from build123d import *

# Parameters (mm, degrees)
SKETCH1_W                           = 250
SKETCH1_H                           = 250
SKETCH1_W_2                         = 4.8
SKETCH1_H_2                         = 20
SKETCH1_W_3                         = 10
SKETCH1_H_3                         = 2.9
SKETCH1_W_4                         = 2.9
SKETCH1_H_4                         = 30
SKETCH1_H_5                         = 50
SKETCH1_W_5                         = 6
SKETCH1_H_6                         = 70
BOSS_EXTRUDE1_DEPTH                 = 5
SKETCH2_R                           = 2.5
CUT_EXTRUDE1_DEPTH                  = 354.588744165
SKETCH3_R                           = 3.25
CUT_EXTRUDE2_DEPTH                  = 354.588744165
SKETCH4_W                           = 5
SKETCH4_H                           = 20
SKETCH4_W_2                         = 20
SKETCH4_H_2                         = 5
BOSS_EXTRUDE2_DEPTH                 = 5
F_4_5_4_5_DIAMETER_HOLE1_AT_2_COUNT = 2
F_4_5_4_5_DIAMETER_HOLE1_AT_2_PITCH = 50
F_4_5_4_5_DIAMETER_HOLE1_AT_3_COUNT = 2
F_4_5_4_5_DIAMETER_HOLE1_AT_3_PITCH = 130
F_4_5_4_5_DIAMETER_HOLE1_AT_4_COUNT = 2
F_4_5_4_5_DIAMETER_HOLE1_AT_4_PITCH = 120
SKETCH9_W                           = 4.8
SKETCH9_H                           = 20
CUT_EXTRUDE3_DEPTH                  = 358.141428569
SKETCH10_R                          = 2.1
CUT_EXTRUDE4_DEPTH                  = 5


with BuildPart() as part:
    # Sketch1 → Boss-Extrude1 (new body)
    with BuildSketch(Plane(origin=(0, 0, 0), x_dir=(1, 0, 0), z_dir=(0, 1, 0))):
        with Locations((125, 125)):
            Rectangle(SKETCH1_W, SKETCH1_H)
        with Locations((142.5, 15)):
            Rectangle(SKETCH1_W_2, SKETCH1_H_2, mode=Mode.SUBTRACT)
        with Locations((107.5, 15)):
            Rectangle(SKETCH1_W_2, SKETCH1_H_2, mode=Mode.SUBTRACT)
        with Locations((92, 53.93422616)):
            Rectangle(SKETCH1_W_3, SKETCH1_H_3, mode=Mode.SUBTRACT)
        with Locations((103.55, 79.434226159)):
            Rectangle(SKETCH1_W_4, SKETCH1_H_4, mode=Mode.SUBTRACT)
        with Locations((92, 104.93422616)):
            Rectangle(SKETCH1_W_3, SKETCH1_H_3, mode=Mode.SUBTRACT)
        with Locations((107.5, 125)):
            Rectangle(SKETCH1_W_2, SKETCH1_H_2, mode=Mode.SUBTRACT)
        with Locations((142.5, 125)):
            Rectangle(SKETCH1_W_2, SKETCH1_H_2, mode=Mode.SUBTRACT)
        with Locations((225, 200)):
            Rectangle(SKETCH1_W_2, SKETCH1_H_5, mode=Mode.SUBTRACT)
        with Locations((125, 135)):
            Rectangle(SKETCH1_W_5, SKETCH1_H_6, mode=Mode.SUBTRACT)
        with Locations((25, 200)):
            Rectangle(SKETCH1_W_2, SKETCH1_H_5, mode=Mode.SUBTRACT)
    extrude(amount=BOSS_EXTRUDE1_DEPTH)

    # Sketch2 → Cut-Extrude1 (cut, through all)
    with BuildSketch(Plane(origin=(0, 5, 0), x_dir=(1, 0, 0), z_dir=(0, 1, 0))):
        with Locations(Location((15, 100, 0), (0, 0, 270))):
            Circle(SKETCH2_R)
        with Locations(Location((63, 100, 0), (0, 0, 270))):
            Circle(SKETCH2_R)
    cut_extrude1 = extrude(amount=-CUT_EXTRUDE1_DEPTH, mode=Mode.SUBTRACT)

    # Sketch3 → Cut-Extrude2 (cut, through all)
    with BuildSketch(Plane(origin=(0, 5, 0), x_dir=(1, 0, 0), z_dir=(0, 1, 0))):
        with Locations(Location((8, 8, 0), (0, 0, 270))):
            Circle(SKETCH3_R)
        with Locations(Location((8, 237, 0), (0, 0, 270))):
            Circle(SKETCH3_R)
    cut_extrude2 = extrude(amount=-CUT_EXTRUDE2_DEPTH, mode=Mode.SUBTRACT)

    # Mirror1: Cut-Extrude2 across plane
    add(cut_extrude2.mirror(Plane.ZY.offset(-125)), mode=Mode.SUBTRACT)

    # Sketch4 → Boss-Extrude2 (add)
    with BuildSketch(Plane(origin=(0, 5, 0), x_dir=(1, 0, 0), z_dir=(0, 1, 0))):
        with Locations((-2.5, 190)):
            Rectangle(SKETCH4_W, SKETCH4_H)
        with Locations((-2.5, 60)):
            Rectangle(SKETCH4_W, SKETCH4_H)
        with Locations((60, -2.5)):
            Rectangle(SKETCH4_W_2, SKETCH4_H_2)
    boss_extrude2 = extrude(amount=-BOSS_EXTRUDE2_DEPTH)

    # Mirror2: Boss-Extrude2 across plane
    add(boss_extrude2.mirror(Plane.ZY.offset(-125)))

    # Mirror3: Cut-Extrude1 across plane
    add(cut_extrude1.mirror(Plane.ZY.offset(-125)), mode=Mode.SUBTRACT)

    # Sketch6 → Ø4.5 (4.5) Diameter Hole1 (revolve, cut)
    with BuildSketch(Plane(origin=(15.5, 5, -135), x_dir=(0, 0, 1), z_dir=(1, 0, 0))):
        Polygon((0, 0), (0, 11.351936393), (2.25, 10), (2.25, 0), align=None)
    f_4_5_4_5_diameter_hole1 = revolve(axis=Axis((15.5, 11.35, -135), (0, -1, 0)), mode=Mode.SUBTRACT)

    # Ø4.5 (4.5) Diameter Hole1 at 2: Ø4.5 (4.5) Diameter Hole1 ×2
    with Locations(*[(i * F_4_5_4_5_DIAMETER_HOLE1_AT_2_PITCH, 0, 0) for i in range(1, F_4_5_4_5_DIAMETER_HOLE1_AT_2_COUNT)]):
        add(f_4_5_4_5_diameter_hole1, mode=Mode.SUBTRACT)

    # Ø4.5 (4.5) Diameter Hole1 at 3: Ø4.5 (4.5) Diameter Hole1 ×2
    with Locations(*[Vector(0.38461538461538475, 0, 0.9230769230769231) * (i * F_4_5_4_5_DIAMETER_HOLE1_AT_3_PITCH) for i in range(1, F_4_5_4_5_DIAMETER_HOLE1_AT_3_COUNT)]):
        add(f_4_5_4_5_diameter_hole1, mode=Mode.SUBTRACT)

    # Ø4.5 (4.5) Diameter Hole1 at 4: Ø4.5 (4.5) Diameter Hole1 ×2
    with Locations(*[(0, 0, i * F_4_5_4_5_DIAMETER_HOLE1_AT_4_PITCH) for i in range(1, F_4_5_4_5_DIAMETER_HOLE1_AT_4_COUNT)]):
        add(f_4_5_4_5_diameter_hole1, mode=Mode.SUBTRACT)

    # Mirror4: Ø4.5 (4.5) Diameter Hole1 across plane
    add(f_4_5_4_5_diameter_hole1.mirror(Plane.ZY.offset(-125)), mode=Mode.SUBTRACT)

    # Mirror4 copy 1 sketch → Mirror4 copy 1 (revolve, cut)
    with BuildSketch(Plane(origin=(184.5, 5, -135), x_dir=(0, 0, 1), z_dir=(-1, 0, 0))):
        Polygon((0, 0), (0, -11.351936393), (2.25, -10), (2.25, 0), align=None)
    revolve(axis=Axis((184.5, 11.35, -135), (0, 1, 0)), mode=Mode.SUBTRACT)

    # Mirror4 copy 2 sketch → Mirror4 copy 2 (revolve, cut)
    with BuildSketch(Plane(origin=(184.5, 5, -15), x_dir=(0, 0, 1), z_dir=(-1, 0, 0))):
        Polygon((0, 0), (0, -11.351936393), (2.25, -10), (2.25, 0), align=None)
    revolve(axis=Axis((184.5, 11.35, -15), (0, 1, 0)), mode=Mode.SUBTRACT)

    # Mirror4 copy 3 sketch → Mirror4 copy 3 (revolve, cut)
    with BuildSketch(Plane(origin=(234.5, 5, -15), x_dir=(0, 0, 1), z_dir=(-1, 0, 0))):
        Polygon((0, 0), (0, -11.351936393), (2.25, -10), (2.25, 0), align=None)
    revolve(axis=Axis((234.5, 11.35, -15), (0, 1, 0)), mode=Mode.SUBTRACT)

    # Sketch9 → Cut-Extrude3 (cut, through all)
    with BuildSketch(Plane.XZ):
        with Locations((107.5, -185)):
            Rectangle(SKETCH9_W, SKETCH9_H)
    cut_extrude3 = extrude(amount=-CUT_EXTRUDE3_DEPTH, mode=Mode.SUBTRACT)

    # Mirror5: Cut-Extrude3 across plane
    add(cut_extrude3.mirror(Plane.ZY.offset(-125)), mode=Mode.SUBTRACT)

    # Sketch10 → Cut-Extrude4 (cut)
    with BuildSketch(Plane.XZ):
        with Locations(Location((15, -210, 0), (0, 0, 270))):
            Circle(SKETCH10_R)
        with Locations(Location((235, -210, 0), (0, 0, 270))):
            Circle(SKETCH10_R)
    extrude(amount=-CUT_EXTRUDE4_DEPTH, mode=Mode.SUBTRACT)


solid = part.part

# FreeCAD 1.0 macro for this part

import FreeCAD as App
import Part
import Sketcher
Q = App.Units.Quantity


def add_polygon(sketch, points):
    """Adds a closed chain of lines whose ends are joined by coincident constraints."""
    first, n = sketch.GeometryCount, len(points)
    for a, b in zip(points, points[1:] + points[:1]):
        sketch.addGeometry(Part.LineSegment(App.Vector(*a, 0), App.Vector(*b, 0)), False)
    for i in range(n):
        sketch.addConstraint(Sketcher.Constraint("Coincident", first + i, 2, first + (i + 1) % n, 1))

doc = App.newDocument("Part")
params = doc.addObject("Spreadsheet::Sheet", "Params")
for row, (alias, value) in enumerate([
    ("sketch1_width", "250 mm"),
    ("sketch1_width2", "10 mm"),
    ("sketch1_width3", "6 mm"),
    ("sketch1_height", "20 mm"),
    ("sketch1_height2", "30 mm"),
    ("pad1_length", "5 mm"),
    ("sketch2_diameter", "5 mm"),
    ("sketch3_diameter", "6.5 mm"),
    ("sketch4_width", "5 mm"),
    ("sketch4_width2", "20 mm"),
    ("pad2_length", "5 mm"),
    ("sketch5_width", "10 mm"),
    ("sketch5_height", "2.25 mm"),
    ("groove_angle", "360 deg"),
    ("linearpattern_pitch", "50 mm"),
    ("linearpattern2_pitch", "130 mm"),
    ("linearpattern3_pitch", "120 mm"),
    ("sketch6_width", "10 mm"),
    ("sketch6_height", "2.25 mm"),
    ("groove2_angle", "360 deg"),
    ("sketch7_width", "10 mm"),
    ("sketch7_height", "2.25 mm"),
    ("groove3_angle", "360 deg"),
    ("sketch8_width", "10 mm"),
    ("sketch8_height", "2.25 mm"),
    ("groove4_angle", "360 deg"),
    ("sketch9_height", "20 mm"),
    ("sketch9_width", "4.8 mm"),
    ("sketch10_diameter", "4.2 mm"),
    ("pocket4_length", "5 mm"),
], start=1):
    params.set(f"A{row}", alias)
    params.set(f"B{row}", "=" + value)
    params.setAlias(f"B{row}", alias)

body = doc.addObject("PartDesign::Body", "Body")

sketch1 = doc.addObject("Sketcher::SketchObject", "Sketch")
body.addObject(sketch1)
sketch1.AttachmentSupport = (doc.XZ_Plane, [""])
sketch1.MapMode = "FlatFace"
add_polygon(sketch1, [(0, -250), (0, 0), (250, 0), (250, -250)])
add_polygon(sketch1, [(109.9, -5), (105.1, -5), (105.1, -25), (109.9, -25)])
add_polygon(sketch1, [(97, -52.5), (87, -52.5), (87, -55.4), (97, -55.4)])
add_polygon(sketch1, [(105, -64.4), (102.1, -64.4), (102.1, -94.4), (105, -94.4)])
add_polygon(sketch1, [(97, -103.5), (87, -103.5), (87, -106.4), (97, -106.4)])
add_polygon(sketch1, [(144.9, -5), (140.1, -5), (140.1, -25), (144.9, -25)])
add_polygon(sketch1, [(109.9, -115), (105.1, -115), (105.1, -135), (109.9, -135)])
add_polygon(sketch1, [(27.4, -175), (22.6, -175), (22.6, -225), (27.4, -225)])
add_polygon(sketch1, [(144.9, -115), (140.1, -115), (140.1, -135), (144.9, -135)])
add_polygon(sketch1, [(128, -100), (122, -100), (122, -170), (128, -170)])
add_polygon(sketch1, [(227.4, -175), (222.6, -175), (222.6, -225), (227.4, -225)])
sketch1.addConstraint([
    Sketcher.Constraint("Vertical", 0),
    Sketcher.Constraint("Horizontal", 1),
    Sketcher.Constraint("Vertical", 2),
    Sketcher.Constraint("Horizontal", 3),
    Sketcher.Constraint("Horizontal", 4),
    Sketcher.Constraint("Vertical", 5),
    Sketcher.Constraint("Horizontal", 6),
    Sketcher.Constraint("Vertical", 7),
    Sketcher.Constraint("Horizontal", 8),
    Sketcher.Constraint("Vertical", 9),
    Sketcher.Constraint("Horizontal", 10),
    Sketcher.Constraint("Vertical", 11),
    Sketcher.Constraint("Horizontal", 12),
    Sketcher.Constraint("Vertical", 13),
    Sketcher.Constraint("Horizontal", 14),
    Sketcher.Constraint("Vertical", 15),
    Sketcher.Constraint("Horizontal", 16),
    Sketcher.Constraint("Vertical", 17),
    Sketcher.Constraint("Horizontal", 18),
    Sketcher.Constraint("Vertical", 19),
    Sketcher.Constraint("Horizontal", 20),
    Sketcher.Constraint("Vertical", 21),
    Sketcher.Constraint("Horizontal", 22),
    Sketcher.Constraint("Vertical", 23),
    Sketcher.Constraint("Horizontal", 24),
    Sketcher.Constraint("Vertical", 25),
    Sketcher.Constraint("Horizontal", 26),
    Sketcher.Constraint("Vertical", 27),
    Sketcher.Constraint("Horizontal", 28),
    Sketcher.Constraint("Vertical", 29),
    Sketcher.Constraint("Horizontal", 30),
    Sketcher.Constraint("Vertical", 31),
    Sketcher.Constraint("Horizontal", 32),
    Sketcher.Constraint("Vertical", 33),
    Sketcher.Constraint("Horizontal", 34),
    Sketcher.Constraint("Vertical", 35),
    Sketcher.Constraint("Horizontal", 36),
    Sketcher.Constraint("Vertical", 37),
    Sketcher.Constraint("Horizontal", 38),
    Sketcher.Constraint("Vertical", 39),
    Sketcher.Constraint("Horizontal", 40),
    Sketcher.Constraint("Vertical", 41),
    Sketcher.Constraint("Horizontal", 42),
    Sketcher.Constraint("Vertical", 43),
    Sketcher.Constraint("Coincident", 0, 2, -1, 1),
    Sketcher.Constraint("Horizontal", 7, 2, 20, 2),
    Sketcher.Constraint("Horizontal", 6, 2, 21, 2),
    Sketcher.Constraint("Horizontal", 27, 2, 32, 2),
    Sketcher.Constraint("Horizontal", 26, 2, 33, 2),
    Sketcher.Constraint("Horizontal", 31, 2, 40, 2),
    Sketcher.Constraint("Horizontal", 30, 2, 41, 2),
    Sketcher.Constraint("Vertical", 9, 2, 16, 2),
    Sketcher.Constraint("Vertical", 11, 2, 18, 2),
    Sketcher.Constraint("Vertical", 5, 2, 24, 2),
    Sketcher.Constraint("Vertical", 7, 2, 26, 2),
    Sketcher.Constraint("Vertical", 21, 2, 32, 2),
    Sketcher.Constraint("Vertical", 23, 2, 34, 2),
    Sketcher.Constraint("Equal", 6, 20),
    Sketcher.Constraint("Equal", 26, 28),
    Sketcher.Constraint("Equal", 34, 40),
    Sketcher.Constraint("Equal", 3, 0),
    Sketcher.Constraint("Equal", 14, 9),
    Sketcher.Constraint("Equal", 11, 17),
    Sketcher.Constraint("Equal", 23, 25),
    Sketcher.Constraint("DistanceX", 1, 1, 1, 2, Q("250 mm")),
    Sketcher.Constraint("DistanceX", 8, 2, 8, 1, Q("10 mm")),
    Sketcher.Constraint("DistanceX", 36, 2, 36, 1, Q("6 mm")),
    Sketcher.Constraint("DistanceY", 5, 2, 5, 1, Q("20 mm")),
    Sketcher.Constraint("DistanceY", 13, 2, 13, 1, Q("30 mm")),
    Sketcher.Constraint("DistanceY", 29, 2, 29, 1, Q("50 mm")),
    Sketcher.Constraint("DistanceY", 37, 2, 37, 1, Q("70 mm")),
    Sketcher.Constraint("DistanceX", 4, 2, 4, 1, Q("4.8 mm")),
    Sketcher.Constraint("DistanceX", 12, 2, 12, 1, Q("2.9 mm")),
    Sketcher.Constraint("DistanceY", 4, 2, -1, 1, Q("5 mm")),
    Sketcher.Constraint("DistanceX", -1, 1, 8, 2, Q("87 mm")),
    Sketcher.Constraint("DistanceX", -1, 1, 14, 2, Q("105 mm")),
    Sketcher.Constraint("DistanceY", 24, 2, -1, 1, Q("115 mm")),
    Sketcher.Constraint("DistanceY", 28, 2, -1, 1, Q("175 mm")),
    Sketcher.Constraint("DistanceX", -1, 1, 36, 2, Q("122 mm")),
    Sketcher.Constraint("DistanceY", 36, 2, -1, 1, Q("100 mm")),
    Sketcher.Constraint("DistanceX", 12, 2, 5, 2, Q("3 mm")),
    Sketcher.Constraint("DistanceX", 4, 2, 20, 2, Q("35 mm")),
    Sketcher.Constraint("DistanceX", -1, 1, 28, 2, Q("22.6 mm")),
    Sketcher.Constraint("DistanceX", -1, 1, 40, 2, Q("222.6 mm")),
    Sketcher.Constraint("DistanceY", 16, 2, 9, 2, Q("48.1 mm")),
    Sketcher.Constraint("DistanceY", 12, 2, 10, 2, Q("9.05 mm")),
    Sketcher.Constraint("DistanceY", 8, 2, -1, 1, Q("52.484226 mm")),
])
sketch1.setExpression("Constraints[108]", "Params.sketch1_width")
sketch1.setExpression("Constraints[109]", "Params.sketch1_width2")
sketch1.setExpression("Constraints[110]", "Params.sketch1_width3")
sketch1.setExpression("Constraints[111]", "Params.sketch1_height")
sketch1.setExpression("Constraints[112]", "Params.sketch1_height2")
pad1 = doc.addObject("PartDesign::Pad", "Pad")
body.addObject(pad1)
pad1.Profile = sketch1
pad1.setExpression("Length", "Params.pad1_length")
pad1.Reversed = True

sketch2 = doc.addObject("Sketcher::SketchObject", "Sketch001")
body.addObject(sketch2)
sketch2.AttachmentSupport = (doc.XZ_Plane, [""])
sketch2.MapMode = "FlatFace"
sketch2.AttachmentOffset = App.Placement(App.Vector(0, 0, -5), App.Rotation())
sketch2.addGeometry([
    Part.Circle(App.Vector(15, -100, 0), App.Vector(0, 0, 1), 2.5),
    Part.Circle(App.Vector(63, -100, 0), App.Vector(0, 0, 1), 2.5),
], False)
sketch2.addConstraint([
    Sketcher.Constraint("Equal", 0, 1),
    Sketcher.Constraint("Horizontal", 0, 3, 1, 3),
    Sketcher.Constraint("Diameter", 0, Q("5 mm")),
    Sketcher.Constraint("DistanceX", -1, 1, 0, 3, Q("15 mm")),
    Sketcher.Constraint("DistanceY", 0, 3, -1, 1, Q("100 mm")),
    Sketcher.Constraint("DistanceX", -1, 1, 1, 3, Q("63 mm")),
])
sketch2.setExpression("Constraints[2]", "Params.sketch2_diameter")
pocket1 = doc.addObject("PartDesign::Pocket", "Pocket")
body.addObject(pocket1)
pocket1.Profile = sketch2
pocket1.Type = "ThroughAll"
pocket1.Reversed = True

sketch3 = doc.addObject("Sketcher::SketchObject", "Sketch002")
body.addObject(sketch3)
sketch3.AttachmentSupport = (doc.XZ_Plane, [""])
sketch3.MapMode = "FlatFace"
sketch3.AttachmentOffset = App.Placement(App.Vector(0, 0, -5), App.Rotation())
sketch3.addGeometry([
    Part.Circle(App.Vector(8, -8, 0), App.Vector(0, 0, 1), 3.2),
    Part.Circle(App.Vector(8, -237, 0), App.Vector(0, 0, 1), 3.2),
], False)
sketch3.addConstraint([
    Sketcher.Constraint("Equal", 0, 1),
    Sketcher.Constraint("Vertical", 0, 3, 1, 3),
    Sketcher.Constraint("Diameter", 0, Q("6.5 mm")),
    Sketcher.Constraint("DistanceX", -1, 1, 0, 3, Q("8 mm")),
    Sketcher.Constraint("DistanceY", 0, 3, -1, 1, Q("8 mm")),
    Sketcher.Constraint("DistanceY", 1, 3, -1, 1, Q("237 mm")),
])
sketch3.setExpression("Constraints[2]", "Params.sketch3_diameter")
pocket2 = doc.addObject("PartDesign::Pocket", "Pocket001")
body.addObject(pocket2)
pocket2.Profile = sketch3
pocket2.Type = "ThroughAll"
pocket2.Reversed = True
doc.recompute()

datumplane = doc.addObject("PartDesign::Plane", "DatumPlane")
body.addObject(datumplane)
datumplane.AttachmentSupport = (doc.YZ_Plane, [""])
datumplane.MapMode = "FlatFace"
datumplane.AttachmentOffset = App.Placement(App.Vector(0, 0, 125), App.Rotation())
mirrored = doc.addObject("PartDesign::Mirrored", "Mirrored")
body.addObject(mirrored)
mirrored.Originals = [pocket2]
mirrored.MirrorPlane = (datumplane, [""])
body.Tip = mirrored

sketch4 = doc.addObject("Sketcher::SketchObject", "Sketch003")
body.addObject(sketch4)
sketch4.AttachmentSupport = (doc.XZ_Plane, [""])
sketch4.MapMode = "FlatFace"
sketch4.AttachmentOffset = App.Placement(App.Vector(0, 0, -5), App.Rotation())
add_polygon(sketch4, [(-5, -200), (-5, -180), (0, -180), (0, -200)])
add_polygon(sketch4, [(-5, -70), (-5, -50), (0, -50), (0, -70)])
add_polygon(sketch4, [(50, 0), (50, 5), (70, 5), (70, 0)])
sketch4.addConstraint([
    Sketcher.Constraint("Vertical", 0),
    Sketcher.Constraint("Horizontal", 1),
    Sketcher.Constraint("Vertical", 2),
    Sketcher.Constraint("Horizontal", 3),
    Sketcher.Constraint("Vertical", 4),
    Sketcher.Constraint("Horizontal", 5),
    Sketcher.Constraint("Vertical", 6),
    Sketcher.Constraint("Horizontal", 7),
    Sketcher.Constraint("Vertical", 8),
    Sketcher.Constraint("Horizontal", 9),
    Sketcher.Constraint("Vertical", 10),
    Sketcher.Constraint("Horizontal", 11),
    Sketcher.Constraint("PointOnObject", 1, 2, -2),
    Sketcher.Constraint("PointOnObject", 5, 2, -2),
    Sketcher.Constraint("PointOnObject", 10, 2, -1),
    Sketcher.Constraint("Vertical", 3, 2, 4, 2),
    Sketcher.Constraint("Equal", 11, 0),
    Sketcher.Constraint("Equal", 2, 4),
    Sketcher.Constraint("Equal", 7, 8),
    Sketcher.Constraint("DistanceX", 1, 1, 1, 2, Q("5 mm")),
    Sketcher.Constraint("DistanceX", 9, 1, 9, 2, Q("20 mm")),
    Sketcher.Constraint("DistanceY", 0, 2, -1, 1, Q("180 mm")),
    Sketcher.Constraint("DistanceY", 4, 2, -1, 1, Q("50 mm")),
    Sketcher.Constraint("DistanceX", -1, 1, 8, 2, Q("50 mm")),
])
sketch4.setExpression("Constraints[31]", "Params.sketch4_width")
sketch4.setExpression("Constraints[32]", "Params.sketch4_width2")
pad2 = doc.addObject("PartDesign::Pad", "Pad001")
body.addObject(pad2)
pad2.Profile = sketch4
pad2.setExpression("Length", "Params.pad2_length")
doc.recompute()

datumplane2 = doc.addObject("PartDesign::Plane", "DatumPlane001")
body.addObject(datumplane2)
datumplane2.AttachmentSupport = (doc.YZ_Plane, [""])
datumplane2.MapMode = "FlatFace"
datumplane2.AttachmentOffset = App.Placement(App.Vector(0, 0, 125), App.Rotation())
mirrored2 = doc.addObject("PartDesign::Mirrored", "Mirrored001")
body.addObject(mirrored2)
mirrored2.Originals = [pad2]
mirrored2.MirrorPlane = (datumplane2, [""])
body.Tip = mirrored2
doc.recompute()

datumplane3 = doc.addObject("PartDesign::Plane", "DatumPlane002")
body.addObject(datumplane3)
datumplane3.AttachmentSupport = (doc.YZ_Plane, [""])
datumplane3.MapMode = "FlatFace"
datumplane3.AttachmentOffset = App.Placement(App.Vector(0, 0, 125), App.Rotation())
mirrored3 = doc.addObject("PartDesign::Mirrored", "Mirrored002")
body.addObject(mirrored3)
mirrored3.Originals = [pocket1]
mirrored3.MirrorPlane = (datumplane3, [""])
body.Tip = mirrored3

sketch5 = doc.addObject("Sketcher::SketchObject", "Sketch004")
body.addObject(sketch5)
sketch5.AttachmentSupport = (doc.YZ_Plane, [""])
sketch5.MapMode = "FlatFace"
sketch5.AttachmentOffset = App.Placement(App.Vector(0, 0, 15.5), App.Rotation())
add_polygon(sketch5, [(-6.4, -135), (5, -135), (5, -132.8), (-5, -132.8)])
sketch5.addGeometry(Part.LineSegment(App.Vector(5, -135, 0), App.Vector(-6.4, -135, 0)), True)
sketch5.addConstraint([
    Sketcher.Constraint("Horizontal", 0),
    Sketcher.Constraint("Vertical", 1),
    Sketcher.Constraint("Horizontal", 2),
    Sketcher.Constraint("Horizontal", 4),
    Sketcher.Constraint("Coincident", 4, 1, 0, 2),
    Sketcher.Constraint("Equal", 0, 4),
    Sketcher.Constraint("DistanceX", 2, 2, 2, 1, Q("10 mm")),
    Sketcher.Constraint("Angle", 3, Q("-121 deg")),
    Sketcher.Constraint("DistanceX", -1, 1, 0, 2, Q("5 mm")),
    Sketcher.Constraint("DistanceY", 0, 2, -1, 1, Q("135 mm")),
    Sketcher.Constraint("DistanceY", 1, 1, 1, 2, Q("2.25 mm")),
])
sketch5.setExpression("Constraints[10]", "Params.sketch5_width")
sketch5.setExpression("Constraints[14]", "Params.sketch5_height")
groove = doc.addObject("PartDesign::Groove", "Groove")
body.addObject(groove)
groove.Profile = sketch5
groove.ReferenceAxis = (sketch5, ["Axis0"])
groove.setExpression("Angle", "Params.groove_angle")
doc.recompute()

linearpattern = doc.addObject("PartDesign::LinearPattern", "LinearPattern")
body.addObject(linearpattern)
linearpattern.Originals = [groove]
linearpattern.Direction = (doc.X_Axis, [""])
linearpattern.Mode = "offset"
linearpattern.setExpression("Offset", "Params.linearpattern_pitch")
linearpattern.Occurrences = 2
body.Tip = linearpattern
doc.recompute()

datumline = doc.addObject("PartDesign::Line", "DatumLine")
body.addObject(datumline)
datumline.Placement = App.Placement(App.Vector(0, 0, 0), App.Rotation(App.Vector(0, 0, 1), App.Vector(0.384615385, 0, 0.923076923)))
linearpattern2 = doc.addObject("PartDesign::LinearPattern", "LinearPattern001")
body.addObject(linearpattern2)
linearpattern2.Originals = [groove]
linearpattern2.Direction = (datumline, [""])
linearpattern2.Mode = "offset"
linearpattern2.setExpression("Offset", "Params.linearpattern2_pitch")
linearpattern2.Occurrences = 2
body.Tip = linearpattern2
doc.recompute()

linearpattern3 = doc.addObject("PartDesign::LinearPattern", "LinearPattern002")
body.addObject(linearpattern3)
linearpattern3.Originals = [groove]
linearpattern3.Direction = (doc.Z_Axis, [""])
linearpattern3.Mode = "offset"
linearpattern3.setExpression("Offset", "Params.linearpattern3_pitch")
linearpattern3.Occurrences = 2
body.Tip = linearpattern3
doc.recompute()

datumplane4 = doc.addObject("PartDesign::Plane", "DatumPlane003")
body.addObject(datumplane4)
datumplane4.AttachmentSupport = (doc.YZ_Plane, [""])
datumplane4.MapMode = "FlatFace"
datumplane4.AttachmentOffset = App.Placement(App.Vector(0, 0, 125), App.Rotation())
mirrored4 = doc.addObject("PartDesign::Mirrored", "Mirrored003")
body.addObject(mirrored4)
mirrored4.Originals = [groove]
mirrored4.MirrorPlane = (datumplane4, [""])
body.Tip = mirrored4

sketch6 = doc.addObject("Sketcher::SketchObject", "Sketch005")
body.addObject(sketch6)
sketch6.AttachmentSupport = (doc.YZ_Plane, [""])
sketch6.MapMode = "FlatFace"
sketch6.AttachmentOffset = App.Placement(App.Vector(0, 0, 184.5), App.Rotation())
add_polygon(sketch6, [(5, -135), (-6.4, -135), (-5, -132.8), (5, -132.8)])
sketch6.addGeometry(Part.LineSegment(App.Vector(-6.4, -135, 0), App.Vector(5, -135, 0)), True)
sketch6.addConstraint([
    Sketcher.Constraint("Horizontal", 0),
    Sketcher.Constraint("Horizontal", 2),
    Sketcher.Constraint("Vertical", 3),
    Sketcher.Constraint("Horizontal", 4),
    Sketcher.Constraint("Coincident", 4, 1, 0, 2),
    Sketcher.Constraint("Vertical", 2, 2, 4, 2),
    Sketcher.Constraint("DistanceX", 2, 1, 2, 2, Q("10 mm")),
    Sketcher.Constraint("Angle", 1, Q("59 deg")),
    Sketcher.Constraint("DistanceY", 0, 2, -1, 1, Q("135 mm")),
    Sketcher.Constraint("DistanceX", 1, 2, -1, 1, Q("5 mm")),
    Sketcher.Constraint("DistanceY", 3, 2, 3, 1, Q("2.25 mm")),
])
sketch6.setExpression("Constraints[10]", "Params.sketch6_width")
sketch6.setExpression("Constraints[14]", "Params.sketch6_height")
groove2 = doc.addObject("PartDesign::Groove", "Groove001")
body.addObject(groove2)
groove2.Profile = sketch6
groove2.ReferenceAxis = (sketch6, ["Axis0"])
groove2.setExpression("Angle", "Params.groove2_angle")

sketch7 = doc.addObject("Sketcher::SketchObject", "Sketch006")
body.addObject(sketch7)
sketch7.AttachmentSupport = (doc.YZ_Plane, [""])
sketch7.MapMode = "FlatFace"
sketch7.AttachmentOffset = App.Placement(App.Vector(0, 0, 184.5), App.Rotation())
add_polygon(sketch7, [(5, -15), (-6.4, -15), (-5, -12.8), (5, -12.8)])
sketch7.addGeometry(Part.LineSegment(App.Vector(-6.4, -15, 0), App.Vector(5, -15, 0)), True)
sketch7.addConstraint([
    Sketcher.Constraint("Horizontal", 0),
    Sketcher.Constraint("Horizontal", 2),
    Sketcher.Constraint("Vertical", 3),
    Sketcher.Constraint("Horizontal", 4),
    Sketcher.Constraint("Coincident", 4, 1, 0, 2),
    Sketcher.Constraint("Vertical", 2, 2, 4, 2),
    Sketcher.Constraint("DistanceX", 2, 1, 2, 2, Q("10 mm")),
    Sketcher.Constraint("Angle", 1, Q("59 deg")),
    Sketcher.Constraint("DistanceY", 0, 2, -1, 1, Q("15 mm")),
    Sketcher.Constraint("DistanceX", 1, 2, -1, 1, Q("5 mm")),
    Sketcher.Constraint("DistanceY", 3, 2, 3, 1, Q("2.25 mm")),
])
sketch7.setExpression("Constraints[10]", "Params.sketch7_width")
sketch7.setExpression("Constraints[14]", "Params.sketch7_height")
groove3 = doc.addObject("PartDesign::Groove", "Groove002")
body.addObject(groove3)
groove3.Profile = sketch7
groove3.ReferenceAxis = (sketch7, ["Axis0"])
groove3.setExpression("Angle", "Params.groove3_angle")

sketch8 = doc.addObject("Sketcher::SketchObject", "Sketch007")
body.addObject(sketch8)
sketch8.AttachmentSupport = (doc.YZ_Plane, [""])
sketch8.MapMode = "FlatFace"
sketch8.AttachmentOffset = App.Placement(App.Vector(0, 0, 234.5), App.Rotation())
add_polygon(sketch8, [(5, -15), (-6.4, -15), (-5, -12.8), (5, -12.8)])
sketch8.addGeometry(Part.LineSegment(App.Vector(-6.4, -15, 0), App.Vector(5, -15, 0)), True)
sketch8.addConstraint([
    Sketcher.Constraint("Horizontal", 0),
    Sketcher.Constraint("Horizontal", 2),
    Sketcher.Constraint("Vertical", 3),
    Sketcher.Constraint("Horizontal", 4),
    Sketcher.Constraint("Coincident", 4, 1, 0, 2),
    Sketcher.Constraint("Vertical", 2, 2, 4, 2),
    Sketcher.Constraint("DistanceX", 2, 1, 2, 2, Q("10 mm")),
    Sketcher.Constraint("Angle", 1, Q("59 deg")),
    Sketcher.Constraint("DistanceY", 0, 2, -1, 1, Q("15 mm")),
    Sketcher.Constraint("DistanceX", 1, 2, -1, 1, Q("5 mm")),
    Sketcher.Constraint("DistanceY", 3, 2, 3, 1, Q("2.25 mm")),
])
sketch8.setExpression("Constraints[10]", "Params.sketch8_width")
sketch8.setExpression("Constraints[14]", "Params.sketch8_height")
groove4 = doc.addObject("PartDesign::Groove", "Groove003")
body.addObject(groove4)
groove4.Profile = sketch8
groove4.ReferenceAxis = (sketch8, ["Axis0"])
groove4.setExpression("Angle", "Params.groove4_angle")

sketch9 = doc.addObject("Sketcher::SketchObject", "Sketch008")
body.addObject(sketch9)
sketch9.AttachmentSupport = (doc.XZ_Plane, [""])
sketch9.MapMode = "FlatFace"
add_polygon(sketch9, [(105.1, -175), (105.1, -195), (109.9, -195), (109.9, -175)])
sketch9.addConstraint([
    Sketcher.Constraint("Vertical", 0),
    Sketcher.Constraint("Horizontal", 1),
    Sketcher.Constraint("Vertical", 2),
    Sketcher.Constraint("Horizontal", 3),
    Sketcher.Constraint("DistanceY", 0, 2, 0, 1, Q("20 mm")),
    Sketcher.Constraint("DistanceX", 1, 1, 1, 2, Q("4.8 mm")),
    Sketcher.Constraint("DistanceY", 0, 2, -1, 1, Q("195 mm")),
    Sketcher.Constraint("DistanceX", -1, 1, 0, 2, Q("105.1 mm")),
])
sketch9.setExpression("Constraints[8]", "Params.sketch9_height")
sketch9.setExpression("Constraints[9]", "Params.sketch9_width")
pocket3 = doc.addObject("PartDesign::Pocket", "Pocket002")
body.addObject(pocket3)
pocket3.Profile = sketch9
pocket3.Type = "ThroughAll"
doc.recompute()

datumplane5 = doc.addObject("PartDesign::Plane", "DatumPlane004")
body.addObject(datumplane5)
datumplane5.AttachmentSupport = (doc.YZ_Plane, [""])
datumplane5.MapMode = "FlatFace"
datumplane5.AttachmentOffset = App.Placement(App.Vector(0, 0, 125), App.Rotation())
mirrored5 = doc.addObject("PartDesign::Mirrored", "Mirrored004")
body.addObject(mirrored5)
mirrored5.Originals = [pocket3]
mirrored5.MirrorPlane = (datumplane5, [""])
body.Tip = mirrored5

sketch10 = doc.addObject("Sketcher::SketchObject", "Sketch009")
body.addObject(sketch10)
sketch10.AttachmentSupport = (doc.XZ_Plane, [""])
sketch10.MapMode = "FlatFace"
sketch10.addGeometry([
    Part.Circle(App.Vector(15, -210, 0), App.Vector(0, 0, 1), 2.1),
    Part.Circle(App.Vector(235, -210, 0), App.Vector(0, 0, 1), 2.1),
], False)
sketch10.addConstraint([
    Sketcher.Constraint("Equal", 0, 1),
    Sketcher.Constraint("Horizontal", 0, 3, 1, 3),
    Sketcher.Constraint("Diameter", 0, Q("4.2 mm")),
    Sketcher.Constraint("DistanceX", -1, 1, 0, 3, Q("15 mm")),
    Sketcher.Constraint("DistanceY", 0, 3, -1, 1, Q("210 mm")),
    Sketcher.Constraint("DistanceX", -1, 1, 1, 3, Q("235 mm")),
])
sketch10.setExpression("Constraints[2]", "Params.sketch10_diameter")
pocket4 = doc.addObject("PartDesign::Pocket", "Pocket003")
body.addObject(pocket4)
pocket4.Profile = sketch10
pocket4.setExpression("Length", "Params.pocket4_length")

doc.recompute()
